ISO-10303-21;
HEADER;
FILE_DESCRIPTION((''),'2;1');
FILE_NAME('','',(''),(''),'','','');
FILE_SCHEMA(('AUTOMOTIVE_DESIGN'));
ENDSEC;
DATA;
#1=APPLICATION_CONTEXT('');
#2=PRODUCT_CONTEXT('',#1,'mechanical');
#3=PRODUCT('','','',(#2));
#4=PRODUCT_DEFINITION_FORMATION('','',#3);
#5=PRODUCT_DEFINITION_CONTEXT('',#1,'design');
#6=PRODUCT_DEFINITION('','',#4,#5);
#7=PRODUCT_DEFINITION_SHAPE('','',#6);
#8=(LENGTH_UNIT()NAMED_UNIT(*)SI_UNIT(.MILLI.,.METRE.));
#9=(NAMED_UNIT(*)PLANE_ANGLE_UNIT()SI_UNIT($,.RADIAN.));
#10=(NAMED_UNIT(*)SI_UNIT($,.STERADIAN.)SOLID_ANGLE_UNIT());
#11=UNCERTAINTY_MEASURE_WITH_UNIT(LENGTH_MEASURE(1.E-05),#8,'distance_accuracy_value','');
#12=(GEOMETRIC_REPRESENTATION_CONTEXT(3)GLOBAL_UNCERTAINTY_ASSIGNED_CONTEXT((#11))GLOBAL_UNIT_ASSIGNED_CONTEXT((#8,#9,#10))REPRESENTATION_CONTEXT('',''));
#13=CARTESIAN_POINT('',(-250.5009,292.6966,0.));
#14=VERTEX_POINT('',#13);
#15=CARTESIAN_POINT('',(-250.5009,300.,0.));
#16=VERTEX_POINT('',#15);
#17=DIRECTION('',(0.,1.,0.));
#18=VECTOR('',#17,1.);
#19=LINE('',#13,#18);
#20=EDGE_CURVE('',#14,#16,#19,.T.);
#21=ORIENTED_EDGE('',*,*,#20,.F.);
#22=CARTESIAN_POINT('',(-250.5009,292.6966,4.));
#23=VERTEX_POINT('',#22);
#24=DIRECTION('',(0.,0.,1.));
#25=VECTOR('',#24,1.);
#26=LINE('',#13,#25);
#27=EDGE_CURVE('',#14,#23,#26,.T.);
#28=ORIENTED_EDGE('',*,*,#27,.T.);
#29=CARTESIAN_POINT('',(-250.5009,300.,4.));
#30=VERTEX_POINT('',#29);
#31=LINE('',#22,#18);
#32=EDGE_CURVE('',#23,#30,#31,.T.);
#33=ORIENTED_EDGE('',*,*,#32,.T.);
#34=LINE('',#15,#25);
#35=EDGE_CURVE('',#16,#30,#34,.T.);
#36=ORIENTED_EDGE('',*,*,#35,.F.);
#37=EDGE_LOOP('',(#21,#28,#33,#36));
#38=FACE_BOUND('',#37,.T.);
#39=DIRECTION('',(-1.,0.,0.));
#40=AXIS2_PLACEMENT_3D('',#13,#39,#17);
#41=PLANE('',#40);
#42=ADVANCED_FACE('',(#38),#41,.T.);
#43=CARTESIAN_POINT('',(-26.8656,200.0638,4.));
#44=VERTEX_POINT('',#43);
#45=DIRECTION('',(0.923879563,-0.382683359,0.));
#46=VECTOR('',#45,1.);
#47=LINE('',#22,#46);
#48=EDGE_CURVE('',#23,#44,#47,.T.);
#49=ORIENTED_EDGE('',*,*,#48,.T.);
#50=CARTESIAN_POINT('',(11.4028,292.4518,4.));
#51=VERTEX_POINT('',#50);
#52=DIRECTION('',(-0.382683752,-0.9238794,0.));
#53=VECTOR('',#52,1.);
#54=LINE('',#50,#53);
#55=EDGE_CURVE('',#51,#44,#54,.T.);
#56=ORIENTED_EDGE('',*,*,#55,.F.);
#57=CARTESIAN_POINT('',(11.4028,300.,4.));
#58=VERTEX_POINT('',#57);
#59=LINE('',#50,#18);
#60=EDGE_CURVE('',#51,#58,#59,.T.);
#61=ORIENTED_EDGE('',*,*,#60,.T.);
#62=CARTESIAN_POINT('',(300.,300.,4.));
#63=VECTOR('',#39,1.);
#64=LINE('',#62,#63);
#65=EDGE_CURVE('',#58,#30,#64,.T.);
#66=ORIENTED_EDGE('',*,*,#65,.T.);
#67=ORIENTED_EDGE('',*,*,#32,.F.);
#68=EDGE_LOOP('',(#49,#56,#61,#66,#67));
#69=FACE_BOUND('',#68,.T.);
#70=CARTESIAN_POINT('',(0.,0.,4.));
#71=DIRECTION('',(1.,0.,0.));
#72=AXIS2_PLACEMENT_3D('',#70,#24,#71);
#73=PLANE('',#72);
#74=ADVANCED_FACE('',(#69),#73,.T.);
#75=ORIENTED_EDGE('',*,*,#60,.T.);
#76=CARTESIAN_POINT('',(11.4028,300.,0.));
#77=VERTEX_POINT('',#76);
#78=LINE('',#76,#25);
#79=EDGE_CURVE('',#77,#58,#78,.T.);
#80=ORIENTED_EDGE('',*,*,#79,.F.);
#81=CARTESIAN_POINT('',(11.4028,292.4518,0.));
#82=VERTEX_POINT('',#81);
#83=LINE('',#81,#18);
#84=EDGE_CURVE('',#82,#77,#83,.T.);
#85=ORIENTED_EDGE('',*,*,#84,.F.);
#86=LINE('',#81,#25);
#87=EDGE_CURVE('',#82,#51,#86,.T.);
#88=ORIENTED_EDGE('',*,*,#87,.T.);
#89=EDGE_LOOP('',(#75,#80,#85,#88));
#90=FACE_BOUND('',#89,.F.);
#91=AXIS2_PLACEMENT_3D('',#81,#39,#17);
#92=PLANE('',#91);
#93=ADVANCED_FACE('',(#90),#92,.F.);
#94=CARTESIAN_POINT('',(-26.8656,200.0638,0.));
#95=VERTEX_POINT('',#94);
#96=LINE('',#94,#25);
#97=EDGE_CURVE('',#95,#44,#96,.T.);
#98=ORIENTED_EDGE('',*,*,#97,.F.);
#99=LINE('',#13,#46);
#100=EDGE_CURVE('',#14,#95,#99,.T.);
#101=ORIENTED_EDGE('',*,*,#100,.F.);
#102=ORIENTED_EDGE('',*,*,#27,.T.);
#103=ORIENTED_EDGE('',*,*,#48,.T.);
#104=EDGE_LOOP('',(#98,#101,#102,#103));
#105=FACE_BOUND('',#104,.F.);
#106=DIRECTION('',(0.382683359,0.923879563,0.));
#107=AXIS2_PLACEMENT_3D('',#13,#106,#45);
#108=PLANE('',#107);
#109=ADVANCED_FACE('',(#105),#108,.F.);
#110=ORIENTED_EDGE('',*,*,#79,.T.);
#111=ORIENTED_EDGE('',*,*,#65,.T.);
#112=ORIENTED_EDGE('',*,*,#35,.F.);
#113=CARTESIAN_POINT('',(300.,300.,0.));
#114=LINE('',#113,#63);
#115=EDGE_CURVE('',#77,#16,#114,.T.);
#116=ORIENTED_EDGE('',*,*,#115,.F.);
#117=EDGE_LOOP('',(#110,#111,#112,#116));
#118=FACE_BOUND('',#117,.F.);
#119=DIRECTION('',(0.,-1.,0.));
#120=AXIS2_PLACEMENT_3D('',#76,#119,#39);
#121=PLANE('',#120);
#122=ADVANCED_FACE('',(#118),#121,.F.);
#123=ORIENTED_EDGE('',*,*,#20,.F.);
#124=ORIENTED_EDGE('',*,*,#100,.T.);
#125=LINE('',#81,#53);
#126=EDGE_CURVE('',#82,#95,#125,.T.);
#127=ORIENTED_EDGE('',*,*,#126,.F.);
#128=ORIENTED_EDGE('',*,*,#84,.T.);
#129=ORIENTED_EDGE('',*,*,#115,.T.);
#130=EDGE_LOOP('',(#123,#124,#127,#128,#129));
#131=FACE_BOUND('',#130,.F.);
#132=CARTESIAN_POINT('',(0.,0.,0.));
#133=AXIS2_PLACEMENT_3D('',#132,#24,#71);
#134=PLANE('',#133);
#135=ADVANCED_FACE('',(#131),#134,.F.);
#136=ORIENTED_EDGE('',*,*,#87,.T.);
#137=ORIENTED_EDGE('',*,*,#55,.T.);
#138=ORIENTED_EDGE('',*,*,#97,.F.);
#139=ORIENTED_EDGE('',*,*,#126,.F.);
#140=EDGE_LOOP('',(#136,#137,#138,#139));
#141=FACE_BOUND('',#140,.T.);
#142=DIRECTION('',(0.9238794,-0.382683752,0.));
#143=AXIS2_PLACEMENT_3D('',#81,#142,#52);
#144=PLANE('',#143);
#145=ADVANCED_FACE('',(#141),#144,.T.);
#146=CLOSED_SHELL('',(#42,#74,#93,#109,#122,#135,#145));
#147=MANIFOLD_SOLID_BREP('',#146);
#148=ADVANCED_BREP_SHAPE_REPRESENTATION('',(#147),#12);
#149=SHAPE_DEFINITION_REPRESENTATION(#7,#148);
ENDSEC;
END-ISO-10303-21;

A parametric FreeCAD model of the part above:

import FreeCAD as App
import Part
import Sketcher
Q = App.Units.Quantity


def add_polygon(sketch, points):
    """Adds a closed chain of lines whose ends are joined by coincident constraints."""
    first, n = sketch.GeometryCount, len(points)
    for a, b in zip(points, points[1:] + points[:1]):
        sketch.addGeometry(Part.LineSegment(App.Vector(*a, 0), App.Vector(*b, 0)), False)
    for i in range(n):
        sketch.addConstraint(Sketcher.Constraint("Coincident", first + i, 2, first + (i + 1) % n, 1))

doc = App.newDocument("Part")
body = doc.addObject("PartDesign::Body", "Body")

# Sketch on XY plane
sketch1 = body.newObject("Sketcher::SketchObject", "Sketch")
sketch1.AttachmentSupport = (doc.getObject("XY_Plane"), [""])
sketch1.MapMode = "FlatFace"
add_polygon(sketch1, [(-26.8656, 200.0638), (11.4028, 292.4518), (11.4028, 300), (-250.5009, 300), (-250.5009, 292.6966)])  # lines 0-4
sketch1.addConstraint(Sketcher.Constraint("Vertical", 1))
sketch1.addConstraint(Sketcher.Constraint("Horizontal", 2))
sketch1.addConstraint(Sketcher.Constraint("Vertical", 3))
sketch1.addConstraint(Sketcher.Constraint("Perpendicular", 0, 4))
sketch1.addConstraint(Sketcher.Constraint("Distance", 0, Q("100 mm")))
sketch1.addConstraint(Sketcher.Constraint("DistanceY", -1, 1, 1, 2, Q("300 mm")))
sketch1.addConstraint(Sketcher.Constraint("Angle", 0, Q("67.5 deg")))
sketch1.addConstraint(Sketcher.Constraint("Distance", 4, Q("242.061 mm")))
sketch1.addConstraint(Sketcher.Constraint("DistanceY", 1, 1, 1, 2, Q("7.5482 mm")))
sketch1.addConstraint(Sketcher.Constraint("DistanceX", 2, 2, -1, 1, Q("250.501 mm")))
pad1 = body.newObject("PartDesign::Pad", "Pad")
pad1.Profile = sketch1
pad1.Length = 4

doc.recompute()
